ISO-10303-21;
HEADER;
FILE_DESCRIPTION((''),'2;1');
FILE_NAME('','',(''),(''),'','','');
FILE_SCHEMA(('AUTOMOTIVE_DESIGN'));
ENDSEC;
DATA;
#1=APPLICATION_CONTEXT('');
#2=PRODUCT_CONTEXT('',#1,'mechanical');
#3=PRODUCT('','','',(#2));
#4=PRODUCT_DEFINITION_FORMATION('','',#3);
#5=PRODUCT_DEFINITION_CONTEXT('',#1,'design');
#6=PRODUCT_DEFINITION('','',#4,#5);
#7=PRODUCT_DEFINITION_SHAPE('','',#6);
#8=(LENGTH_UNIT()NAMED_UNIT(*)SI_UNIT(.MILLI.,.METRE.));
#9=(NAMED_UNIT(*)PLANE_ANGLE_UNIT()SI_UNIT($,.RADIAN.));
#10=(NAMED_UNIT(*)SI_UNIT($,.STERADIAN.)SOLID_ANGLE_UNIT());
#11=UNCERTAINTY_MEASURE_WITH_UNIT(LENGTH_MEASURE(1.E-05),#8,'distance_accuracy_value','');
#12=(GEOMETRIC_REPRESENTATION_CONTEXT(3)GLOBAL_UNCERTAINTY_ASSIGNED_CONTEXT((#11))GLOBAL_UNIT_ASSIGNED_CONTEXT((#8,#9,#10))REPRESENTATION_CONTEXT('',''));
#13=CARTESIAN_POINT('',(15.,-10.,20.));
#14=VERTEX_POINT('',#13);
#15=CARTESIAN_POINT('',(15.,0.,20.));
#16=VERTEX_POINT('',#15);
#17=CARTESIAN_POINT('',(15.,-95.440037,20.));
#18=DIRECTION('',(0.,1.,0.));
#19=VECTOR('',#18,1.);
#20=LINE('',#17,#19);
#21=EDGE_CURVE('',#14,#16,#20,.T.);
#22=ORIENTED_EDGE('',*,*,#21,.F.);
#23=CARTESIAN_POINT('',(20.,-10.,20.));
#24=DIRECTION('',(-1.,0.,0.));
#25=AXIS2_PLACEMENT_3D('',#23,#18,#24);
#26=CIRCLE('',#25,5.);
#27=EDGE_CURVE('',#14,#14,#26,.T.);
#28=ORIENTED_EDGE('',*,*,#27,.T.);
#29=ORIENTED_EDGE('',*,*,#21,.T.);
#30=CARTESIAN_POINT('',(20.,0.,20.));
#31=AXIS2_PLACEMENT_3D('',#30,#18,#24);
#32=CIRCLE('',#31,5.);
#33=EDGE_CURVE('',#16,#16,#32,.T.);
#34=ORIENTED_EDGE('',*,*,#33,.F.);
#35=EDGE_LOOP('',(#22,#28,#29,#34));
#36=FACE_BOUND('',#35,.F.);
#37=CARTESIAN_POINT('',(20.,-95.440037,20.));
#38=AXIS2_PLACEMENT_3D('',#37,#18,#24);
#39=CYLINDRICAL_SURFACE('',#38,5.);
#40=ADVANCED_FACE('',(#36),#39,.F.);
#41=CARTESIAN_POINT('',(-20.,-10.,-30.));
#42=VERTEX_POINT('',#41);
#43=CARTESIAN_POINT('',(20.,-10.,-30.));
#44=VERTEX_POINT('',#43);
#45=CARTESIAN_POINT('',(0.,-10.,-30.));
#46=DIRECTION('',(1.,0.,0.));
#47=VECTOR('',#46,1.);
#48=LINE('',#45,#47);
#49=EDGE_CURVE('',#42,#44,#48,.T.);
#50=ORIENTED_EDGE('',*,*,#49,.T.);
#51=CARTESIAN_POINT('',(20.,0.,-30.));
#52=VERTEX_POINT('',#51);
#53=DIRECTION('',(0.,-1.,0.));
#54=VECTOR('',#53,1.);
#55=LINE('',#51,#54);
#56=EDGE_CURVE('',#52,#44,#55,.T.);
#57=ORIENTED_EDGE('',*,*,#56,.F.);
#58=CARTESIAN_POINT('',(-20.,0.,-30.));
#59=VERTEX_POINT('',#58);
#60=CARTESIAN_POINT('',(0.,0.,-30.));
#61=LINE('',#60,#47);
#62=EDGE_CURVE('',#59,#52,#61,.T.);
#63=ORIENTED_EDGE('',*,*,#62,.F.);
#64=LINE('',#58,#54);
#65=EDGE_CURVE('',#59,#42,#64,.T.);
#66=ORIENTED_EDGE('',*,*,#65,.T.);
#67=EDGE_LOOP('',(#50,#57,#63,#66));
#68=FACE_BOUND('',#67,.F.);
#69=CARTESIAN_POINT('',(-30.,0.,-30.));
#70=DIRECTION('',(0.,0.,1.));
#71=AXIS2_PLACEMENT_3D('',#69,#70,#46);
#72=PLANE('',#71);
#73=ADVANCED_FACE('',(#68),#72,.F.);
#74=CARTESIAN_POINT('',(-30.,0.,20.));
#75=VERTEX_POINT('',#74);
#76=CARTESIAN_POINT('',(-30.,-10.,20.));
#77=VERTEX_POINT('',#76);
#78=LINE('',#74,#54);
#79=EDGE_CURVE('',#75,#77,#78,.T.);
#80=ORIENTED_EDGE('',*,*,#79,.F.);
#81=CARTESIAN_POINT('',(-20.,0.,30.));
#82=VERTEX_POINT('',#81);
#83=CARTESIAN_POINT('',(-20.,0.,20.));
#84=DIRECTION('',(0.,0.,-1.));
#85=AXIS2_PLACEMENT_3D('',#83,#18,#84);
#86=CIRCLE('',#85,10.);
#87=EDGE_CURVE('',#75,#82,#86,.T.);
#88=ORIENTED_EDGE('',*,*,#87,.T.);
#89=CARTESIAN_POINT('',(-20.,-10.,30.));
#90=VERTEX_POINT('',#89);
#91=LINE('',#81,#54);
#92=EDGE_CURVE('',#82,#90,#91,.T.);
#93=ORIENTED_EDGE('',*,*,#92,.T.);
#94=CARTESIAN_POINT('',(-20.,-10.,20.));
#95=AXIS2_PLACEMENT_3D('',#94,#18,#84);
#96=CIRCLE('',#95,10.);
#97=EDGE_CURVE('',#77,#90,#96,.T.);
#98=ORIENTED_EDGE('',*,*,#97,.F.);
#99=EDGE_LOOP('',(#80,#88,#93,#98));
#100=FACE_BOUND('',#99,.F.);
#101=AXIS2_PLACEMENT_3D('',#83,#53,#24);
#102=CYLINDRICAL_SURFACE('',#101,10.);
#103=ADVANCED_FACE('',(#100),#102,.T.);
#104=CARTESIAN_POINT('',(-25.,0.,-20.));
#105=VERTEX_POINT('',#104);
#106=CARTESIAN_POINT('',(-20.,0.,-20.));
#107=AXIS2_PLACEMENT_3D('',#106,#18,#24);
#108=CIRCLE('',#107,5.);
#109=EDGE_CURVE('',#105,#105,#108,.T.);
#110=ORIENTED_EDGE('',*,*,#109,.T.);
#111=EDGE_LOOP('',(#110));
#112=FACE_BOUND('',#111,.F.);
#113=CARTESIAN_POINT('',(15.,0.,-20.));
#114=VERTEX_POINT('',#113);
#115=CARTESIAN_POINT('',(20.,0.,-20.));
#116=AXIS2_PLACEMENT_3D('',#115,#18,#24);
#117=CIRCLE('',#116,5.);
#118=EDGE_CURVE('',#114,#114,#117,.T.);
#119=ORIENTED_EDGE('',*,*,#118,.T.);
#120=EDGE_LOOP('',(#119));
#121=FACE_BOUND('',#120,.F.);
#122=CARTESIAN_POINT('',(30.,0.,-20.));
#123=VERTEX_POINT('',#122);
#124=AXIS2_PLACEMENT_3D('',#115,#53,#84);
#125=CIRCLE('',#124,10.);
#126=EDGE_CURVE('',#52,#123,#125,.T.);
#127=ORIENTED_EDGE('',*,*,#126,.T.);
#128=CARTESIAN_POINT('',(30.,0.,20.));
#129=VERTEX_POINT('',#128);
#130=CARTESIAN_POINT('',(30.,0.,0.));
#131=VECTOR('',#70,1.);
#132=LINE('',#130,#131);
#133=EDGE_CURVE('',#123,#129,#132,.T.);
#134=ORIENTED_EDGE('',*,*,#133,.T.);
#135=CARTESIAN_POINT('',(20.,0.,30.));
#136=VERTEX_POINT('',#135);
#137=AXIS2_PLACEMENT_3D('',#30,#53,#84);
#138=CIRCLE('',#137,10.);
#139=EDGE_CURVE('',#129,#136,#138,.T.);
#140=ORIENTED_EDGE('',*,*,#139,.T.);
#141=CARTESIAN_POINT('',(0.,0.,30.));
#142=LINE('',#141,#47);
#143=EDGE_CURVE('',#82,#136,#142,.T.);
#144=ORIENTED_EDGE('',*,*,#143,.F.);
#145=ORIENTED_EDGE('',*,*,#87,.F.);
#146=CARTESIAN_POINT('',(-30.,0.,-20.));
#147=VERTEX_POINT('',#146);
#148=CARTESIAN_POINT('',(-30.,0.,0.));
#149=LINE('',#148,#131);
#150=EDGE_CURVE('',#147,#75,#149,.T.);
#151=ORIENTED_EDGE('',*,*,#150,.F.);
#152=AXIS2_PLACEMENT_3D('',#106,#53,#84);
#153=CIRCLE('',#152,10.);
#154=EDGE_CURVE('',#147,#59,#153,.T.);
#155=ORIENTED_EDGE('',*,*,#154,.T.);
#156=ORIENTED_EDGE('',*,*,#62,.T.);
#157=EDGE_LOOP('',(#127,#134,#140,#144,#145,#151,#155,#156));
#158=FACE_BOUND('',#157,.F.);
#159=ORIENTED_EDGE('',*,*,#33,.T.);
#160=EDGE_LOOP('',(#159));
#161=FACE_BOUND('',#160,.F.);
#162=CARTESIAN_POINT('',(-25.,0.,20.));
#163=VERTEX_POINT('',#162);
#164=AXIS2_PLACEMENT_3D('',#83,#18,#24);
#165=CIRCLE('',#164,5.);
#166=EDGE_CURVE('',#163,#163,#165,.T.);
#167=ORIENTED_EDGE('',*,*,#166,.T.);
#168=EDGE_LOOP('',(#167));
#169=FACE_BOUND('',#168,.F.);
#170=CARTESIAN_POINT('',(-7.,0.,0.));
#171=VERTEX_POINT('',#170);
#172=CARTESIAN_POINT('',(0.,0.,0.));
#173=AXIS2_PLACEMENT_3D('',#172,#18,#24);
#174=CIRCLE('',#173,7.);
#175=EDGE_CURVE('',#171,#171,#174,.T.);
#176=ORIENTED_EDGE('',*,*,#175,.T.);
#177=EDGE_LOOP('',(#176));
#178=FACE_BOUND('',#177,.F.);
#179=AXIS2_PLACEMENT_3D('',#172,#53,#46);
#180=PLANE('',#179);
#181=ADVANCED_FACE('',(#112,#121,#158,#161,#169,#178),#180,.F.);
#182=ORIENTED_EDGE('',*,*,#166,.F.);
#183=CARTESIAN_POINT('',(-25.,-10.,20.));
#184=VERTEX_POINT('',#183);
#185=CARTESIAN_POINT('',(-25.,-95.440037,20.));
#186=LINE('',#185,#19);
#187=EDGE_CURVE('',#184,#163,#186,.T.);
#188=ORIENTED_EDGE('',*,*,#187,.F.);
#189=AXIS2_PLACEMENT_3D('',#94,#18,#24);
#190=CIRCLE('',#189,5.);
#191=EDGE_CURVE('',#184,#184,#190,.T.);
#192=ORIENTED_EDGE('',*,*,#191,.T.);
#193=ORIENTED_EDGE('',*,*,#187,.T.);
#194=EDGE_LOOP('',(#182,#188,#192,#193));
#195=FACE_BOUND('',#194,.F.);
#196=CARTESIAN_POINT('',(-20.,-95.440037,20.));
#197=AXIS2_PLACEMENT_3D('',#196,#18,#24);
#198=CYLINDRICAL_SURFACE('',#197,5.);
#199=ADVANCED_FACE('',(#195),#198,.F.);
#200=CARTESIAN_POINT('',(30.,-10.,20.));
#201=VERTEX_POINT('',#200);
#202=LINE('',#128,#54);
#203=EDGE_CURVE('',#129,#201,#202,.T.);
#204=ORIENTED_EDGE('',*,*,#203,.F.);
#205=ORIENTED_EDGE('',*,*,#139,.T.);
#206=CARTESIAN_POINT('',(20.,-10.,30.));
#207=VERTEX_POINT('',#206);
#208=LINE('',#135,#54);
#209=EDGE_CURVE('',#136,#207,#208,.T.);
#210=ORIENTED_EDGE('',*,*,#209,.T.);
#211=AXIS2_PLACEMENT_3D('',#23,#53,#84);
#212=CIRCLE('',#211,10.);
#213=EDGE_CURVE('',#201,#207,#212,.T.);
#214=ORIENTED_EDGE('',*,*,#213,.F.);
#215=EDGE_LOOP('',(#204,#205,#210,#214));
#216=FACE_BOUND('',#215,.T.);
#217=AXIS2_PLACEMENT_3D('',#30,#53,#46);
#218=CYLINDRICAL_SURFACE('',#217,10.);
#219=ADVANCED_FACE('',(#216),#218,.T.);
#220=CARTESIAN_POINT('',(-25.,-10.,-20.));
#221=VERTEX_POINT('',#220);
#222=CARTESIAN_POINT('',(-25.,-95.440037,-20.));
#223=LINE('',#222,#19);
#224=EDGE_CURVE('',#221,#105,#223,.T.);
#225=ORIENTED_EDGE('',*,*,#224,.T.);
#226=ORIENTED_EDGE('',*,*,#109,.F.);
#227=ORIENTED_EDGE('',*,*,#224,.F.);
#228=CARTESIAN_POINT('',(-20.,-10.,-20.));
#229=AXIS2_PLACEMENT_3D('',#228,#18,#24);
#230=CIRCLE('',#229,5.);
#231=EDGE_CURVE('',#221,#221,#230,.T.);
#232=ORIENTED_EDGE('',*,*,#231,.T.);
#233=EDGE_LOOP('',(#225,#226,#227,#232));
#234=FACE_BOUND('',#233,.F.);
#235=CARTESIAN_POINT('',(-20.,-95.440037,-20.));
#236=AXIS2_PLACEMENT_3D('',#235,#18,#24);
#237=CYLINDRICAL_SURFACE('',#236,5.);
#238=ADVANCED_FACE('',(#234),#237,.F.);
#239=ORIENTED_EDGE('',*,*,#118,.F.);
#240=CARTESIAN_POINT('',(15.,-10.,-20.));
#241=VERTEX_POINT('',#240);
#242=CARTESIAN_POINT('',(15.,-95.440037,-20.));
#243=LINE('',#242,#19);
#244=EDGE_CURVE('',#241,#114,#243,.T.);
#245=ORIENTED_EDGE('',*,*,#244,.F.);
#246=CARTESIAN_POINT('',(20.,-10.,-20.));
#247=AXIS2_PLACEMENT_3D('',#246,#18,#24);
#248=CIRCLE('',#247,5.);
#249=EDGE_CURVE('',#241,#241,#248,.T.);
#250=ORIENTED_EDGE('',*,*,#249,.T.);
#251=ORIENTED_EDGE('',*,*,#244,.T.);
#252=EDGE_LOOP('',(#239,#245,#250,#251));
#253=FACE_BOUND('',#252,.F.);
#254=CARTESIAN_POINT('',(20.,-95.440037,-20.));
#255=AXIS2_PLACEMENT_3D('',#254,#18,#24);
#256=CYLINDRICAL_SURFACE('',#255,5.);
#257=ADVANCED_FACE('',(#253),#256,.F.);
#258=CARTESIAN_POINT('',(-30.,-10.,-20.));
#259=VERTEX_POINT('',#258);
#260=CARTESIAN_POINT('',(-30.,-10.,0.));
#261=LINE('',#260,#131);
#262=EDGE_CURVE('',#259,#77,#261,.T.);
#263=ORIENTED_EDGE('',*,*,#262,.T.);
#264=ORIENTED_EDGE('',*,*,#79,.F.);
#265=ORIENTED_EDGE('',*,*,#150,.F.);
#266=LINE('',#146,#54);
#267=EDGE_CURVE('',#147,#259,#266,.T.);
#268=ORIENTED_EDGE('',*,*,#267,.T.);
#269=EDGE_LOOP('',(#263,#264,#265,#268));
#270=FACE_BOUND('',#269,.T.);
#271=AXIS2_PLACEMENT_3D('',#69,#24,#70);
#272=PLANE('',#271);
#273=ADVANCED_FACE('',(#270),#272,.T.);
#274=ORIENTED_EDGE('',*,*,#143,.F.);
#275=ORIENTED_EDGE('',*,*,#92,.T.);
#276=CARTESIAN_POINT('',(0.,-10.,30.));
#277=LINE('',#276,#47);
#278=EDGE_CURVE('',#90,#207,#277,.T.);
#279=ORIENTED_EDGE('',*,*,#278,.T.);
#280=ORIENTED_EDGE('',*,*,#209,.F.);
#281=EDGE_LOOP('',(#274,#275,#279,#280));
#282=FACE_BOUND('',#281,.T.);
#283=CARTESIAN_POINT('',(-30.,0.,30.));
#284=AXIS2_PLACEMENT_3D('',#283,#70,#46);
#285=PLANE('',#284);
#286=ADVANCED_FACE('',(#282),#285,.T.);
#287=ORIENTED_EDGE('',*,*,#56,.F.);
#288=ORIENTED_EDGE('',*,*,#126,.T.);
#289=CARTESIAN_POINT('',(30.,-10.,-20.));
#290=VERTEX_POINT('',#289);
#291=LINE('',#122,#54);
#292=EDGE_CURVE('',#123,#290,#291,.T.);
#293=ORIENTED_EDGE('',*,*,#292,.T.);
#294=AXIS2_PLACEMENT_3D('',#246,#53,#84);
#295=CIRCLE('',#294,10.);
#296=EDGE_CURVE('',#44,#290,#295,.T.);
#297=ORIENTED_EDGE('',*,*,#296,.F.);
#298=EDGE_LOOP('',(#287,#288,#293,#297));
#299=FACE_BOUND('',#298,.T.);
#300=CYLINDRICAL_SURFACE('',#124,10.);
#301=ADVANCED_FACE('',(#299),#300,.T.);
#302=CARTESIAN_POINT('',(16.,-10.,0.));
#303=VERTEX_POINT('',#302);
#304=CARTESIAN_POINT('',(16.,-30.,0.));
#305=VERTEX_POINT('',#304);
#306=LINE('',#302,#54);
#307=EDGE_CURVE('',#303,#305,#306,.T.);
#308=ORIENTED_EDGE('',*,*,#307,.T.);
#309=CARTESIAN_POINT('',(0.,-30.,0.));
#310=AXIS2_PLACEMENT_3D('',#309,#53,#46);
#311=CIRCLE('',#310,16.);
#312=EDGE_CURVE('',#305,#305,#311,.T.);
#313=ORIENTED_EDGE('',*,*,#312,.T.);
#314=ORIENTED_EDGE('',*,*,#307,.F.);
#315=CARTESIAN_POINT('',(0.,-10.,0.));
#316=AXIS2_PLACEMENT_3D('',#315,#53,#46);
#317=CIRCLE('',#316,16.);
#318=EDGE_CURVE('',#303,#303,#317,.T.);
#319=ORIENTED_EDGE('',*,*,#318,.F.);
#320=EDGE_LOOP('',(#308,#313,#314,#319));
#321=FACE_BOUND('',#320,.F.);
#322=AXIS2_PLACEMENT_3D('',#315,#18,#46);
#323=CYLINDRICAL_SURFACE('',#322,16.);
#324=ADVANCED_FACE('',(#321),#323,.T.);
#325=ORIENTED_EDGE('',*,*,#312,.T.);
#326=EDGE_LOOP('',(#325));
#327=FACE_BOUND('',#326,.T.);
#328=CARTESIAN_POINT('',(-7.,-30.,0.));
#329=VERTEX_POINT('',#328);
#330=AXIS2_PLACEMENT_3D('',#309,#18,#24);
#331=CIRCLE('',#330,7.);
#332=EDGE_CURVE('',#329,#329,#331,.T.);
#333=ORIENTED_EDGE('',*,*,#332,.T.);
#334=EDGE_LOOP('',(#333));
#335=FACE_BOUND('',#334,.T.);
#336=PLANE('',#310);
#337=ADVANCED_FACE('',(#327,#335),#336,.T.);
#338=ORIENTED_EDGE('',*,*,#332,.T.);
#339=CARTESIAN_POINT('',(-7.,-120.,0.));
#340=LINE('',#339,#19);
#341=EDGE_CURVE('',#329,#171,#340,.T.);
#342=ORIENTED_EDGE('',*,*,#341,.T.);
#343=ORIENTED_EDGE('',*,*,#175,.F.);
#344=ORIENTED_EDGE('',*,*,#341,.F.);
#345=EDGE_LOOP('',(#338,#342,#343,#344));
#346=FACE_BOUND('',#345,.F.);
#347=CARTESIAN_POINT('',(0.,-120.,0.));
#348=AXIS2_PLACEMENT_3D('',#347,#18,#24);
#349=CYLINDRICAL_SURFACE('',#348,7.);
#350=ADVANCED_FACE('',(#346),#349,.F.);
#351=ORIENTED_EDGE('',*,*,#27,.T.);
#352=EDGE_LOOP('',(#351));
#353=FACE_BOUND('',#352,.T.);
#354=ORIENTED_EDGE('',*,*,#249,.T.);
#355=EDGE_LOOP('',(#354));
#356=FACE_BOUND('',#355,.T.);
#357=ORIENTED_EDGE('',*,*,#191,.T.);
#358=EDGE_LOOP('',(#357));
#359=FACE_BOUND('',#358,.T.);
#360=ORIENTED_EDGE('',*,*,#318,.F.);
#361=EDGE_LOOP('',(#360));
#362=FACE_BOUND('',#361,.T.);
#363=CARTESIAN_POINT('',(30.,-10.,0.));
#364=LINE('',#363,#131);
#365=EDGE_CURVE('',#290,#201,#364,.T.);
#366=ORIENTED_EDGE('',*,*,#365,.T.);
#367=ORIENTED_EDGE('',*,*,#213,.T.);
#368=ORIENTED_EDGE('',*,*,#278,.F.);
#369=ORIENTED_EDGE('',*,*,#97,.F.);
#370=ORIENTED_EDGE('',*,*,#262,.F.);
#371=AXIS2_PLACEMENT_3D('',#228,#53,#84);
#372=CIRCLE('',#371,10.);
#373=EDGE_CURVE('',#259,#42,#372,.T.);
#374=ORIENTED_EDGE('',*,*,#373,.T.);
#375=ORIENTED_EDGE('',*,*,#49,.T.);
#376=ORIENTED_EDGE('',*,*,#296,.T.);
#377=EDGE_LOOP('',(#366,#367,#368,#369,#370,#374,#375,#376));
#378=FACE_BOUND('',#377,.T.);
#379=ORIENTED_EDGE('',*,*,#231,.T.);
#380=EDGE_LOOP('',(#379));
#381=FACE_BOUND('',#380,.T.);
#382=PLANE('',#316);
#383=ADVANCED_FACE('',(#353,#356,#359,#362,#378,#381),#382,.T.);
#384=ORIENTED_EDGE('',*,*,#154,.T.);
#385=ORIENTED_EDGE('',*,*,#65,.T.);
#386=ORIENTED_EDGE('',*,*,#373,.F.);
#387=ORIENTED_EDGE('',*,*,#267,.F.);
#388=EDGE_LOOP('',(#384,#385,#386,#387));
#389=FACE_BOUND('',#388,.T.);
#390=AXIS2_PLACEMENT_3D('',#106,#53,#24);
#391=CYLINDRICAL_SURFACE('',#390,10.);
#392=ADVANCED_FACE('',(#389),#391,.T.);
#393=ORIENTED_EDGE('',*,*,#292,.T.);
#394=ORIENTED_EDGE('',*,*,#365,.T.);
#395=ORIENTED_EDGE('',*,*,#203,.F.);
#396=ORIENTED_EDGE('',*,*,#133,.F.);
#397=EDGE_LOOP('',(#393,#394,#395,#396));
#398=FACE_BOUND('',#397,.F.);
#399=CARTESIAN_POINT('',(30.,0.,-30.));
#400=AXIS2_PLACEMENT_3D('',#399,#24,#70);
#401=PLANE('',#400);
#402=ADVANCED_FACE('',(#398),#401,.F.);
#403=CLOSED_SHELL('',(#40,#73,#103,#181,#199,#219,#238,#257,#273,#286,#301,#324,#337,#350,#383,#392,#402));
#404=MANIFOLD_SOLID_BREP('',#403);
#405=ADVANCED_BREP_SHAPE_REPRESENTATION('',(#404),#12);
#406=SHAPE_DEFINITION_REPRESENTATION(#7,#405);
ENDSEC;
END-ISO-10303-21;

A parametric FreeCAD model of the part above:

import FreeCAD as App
import Part
import Sketcher

V = App.Vector
Q = App.Units.Quantity


def edges_at(feature, points):
    """Names of the edges that pass closest to the given points."""
    edges = feature.Shape.Edges
    near = lambda p: min(range(len(edges)), key=lambda i: edges[i].distToShape(Part.Vertex(*p))[0])
    return sorted({f"Edge{near(p) + 1}" for p in points})


def add_polygon(sketch, points):
    """Adds a closed chain of lines whose ends are joined by coincident constraints."""
    first, n = sketch.GeometryCount, len(points)
    for a, b in zip(points, points[1:] + points[:1]):
        sketch.addGeometry(Part.LineSegment(App.Vector(*a, 0), App.Vector(*b, 0)), False)
    for i in range(n):
        sketch.addConstraint(Sketcher.Constraint("Coincident", first + i, 2, first + (i + 1) % n, 1))

doc = App.newDocument("Part")
body = doc.addObject("PartDesign::Body", "Body")

# Sketch on XZ plane
sketch1 = body.newObject("Sketcher::SketchObject", "Sketch")
sketch1.AttachmentSupport = (doc.getObject("XZ_Plane"), [""])
sketch1.MapMode = "FlatFace"
add_polygon(sketch1, [(-30, 30), (-30, -30), (30, -30), (30, 30)])  # lines 0-3
sketch1.addConstraint(Sketcher.Constraint("Vertical", 0))
sketch1.addConstraint(Sketcher.Constraint("Horizontal", 1))
sketch1.addConstraint(Sketcher.Constraint("Vertical", 2))
sketch1.addConstraint(Sketcher.Constraint("Horizontal", 3))
sketch1.addConstraint(Sketcher.Constraint("Symmetric", 0, 2, 2, 2, -1, 1))
sketch1.addConstraint(Sketcher.Constraint("Equal", 3, 0))
sketch1.addConstraint(Sketcher.Constraint("DistanceX", 1, 1, 1, 2, Q("60 mm")))
pad1 = body.newObject("PartDesign::Pad", "Pad")
pad1.Profile = sketch1
pad1.Length = 10
doc.recompute()

fillet = body.newObject("PartDesign::Fillet", "Fillet")
fillet.Base = (pad1, edges_at(pad1, [
    (-30, -5, 30),
    (-30, -5, -30),
    (30, -5, 30),
    (30, -5, -30),
]))
fillet.Radius = 10

# Sketch on XZ plane
sketch2 = body.newObject("Sketcher::SketchObject", "Sketch001")
sketch2.AttachmentSupport = (doc.getObject("XZ_Plane"), [""])
sketch2.MapMode = "FlatFace"
sketch2.AttachmentOffset = App.Placement(V(0, 0, 10), App.Rotation())
sketch2.addGeometry(Part.Circle(V(-20, 20, 0), V(0, 0, 1), 5), False)
sketch2.addGeometry(Part.Circle(V(20, 20, 0), V(0, 0, 1), 5), False)
sketch2.addGeometry(Part.Circle(V(20, -20, 0), V(0, 0, 1), 5), False)
sketch2.addGeometry(Part.Circle(V(-20, -20, 0), V(0, 0, 1), 5), False)
sketch2.addConstraint(Sketcher.Constraint("Equal", 0, 1))
sketch2.addConstraint(Sketcher.Constraint("Equal", 1, 2))
sketch2.addConstraint(Sketcher.Constraint("Equal", 2, 3))
sketch2.addConstraint(Sketcher.Constraint("Symmetric", 0, 3, 2, 3, -1, 1))
sketch2.addConstraint(Sketcher.Constraint("Symmetric", 1, 3, 3, 3, -1, 1))
sketch2.addConstraint(Sketcher.Constraint("Symmetric", 0, 3, 1, 3, -2))
sketch2.addConstraint(Sketcher.Constraint("Diameter", 0, Q("10 mm")))
sketch2.addConstraint(Sketcher.Constraint("DistanceX", 0, 3, -1, 1, Q("20 mm")))
sketch2.addConstraint(Sketcher.Constraint("DistanceY", -1, 1, 0, 3, Q("20 mm")))
doc.recompute()
hole = body.newObject("PartDesign::Hole", "Hole")
hole.Profile = sketch2
hole.ThreadType = "None"
hole.Diameter = 10
hole.DepthType = "ThroughAll"

# Sketch on XZ plane
sketch3 = body.newObject("Sketcher::SketchObject", "Sketch002")
sketch3.AttachmentSupport = (doc.getObject("XZ_Plane"), [""])
sketch3.MapMode = "FlatFace"
sketch3.AttachmentOffset = App.Placement(V(0, 0, 10), App.Rotation())
sketch3.addGeometry(Part.Circle(V(0, 0, 0), V(0, 0, 1), 16), False)
sketch3.addConstraint(Sketcher.Constraint("Coincident", 0, 3, -1, 1))
sketch3.addConstraint(Sketcher.Constraint("Diameter", 0, Q("32 mm")))
pad2 = body.newObject("PartDesign::Pad", "Pad001")
pad2.Profile = sketch3
pad2.Length = 20

# Sketch on XZ plane
sketch4 = body.newObject("Sketcher::SketchObject", "Sketch003")
sketch4.AttachmentSupport = (doc.getObject("XZ_Plane"), [""])
sketch4.MapMode = "FlatFace"
sketch4.AttachmentOffset = App.Placement(V(0, 0, 30), App.Rotation())
sketch4.addGeometry(Part.Circle(V(0, 0, 0), V(0, 0, 1), 7), False)
sketch4.addConstraint(Sketcher.Constraint("Coincident", 0, 3, -1, 1))
sketch4.addConstraint(Sketcher.Constraint("Diameter", 0, Q("14 mm")))
doc.recompute()
hole2 = body.newObject("PartDesign::Hole", "Hole001")
hole2.Profile = sketch4
hole2.ThreadType = "None"
hole2.Diameter = 14
hole2.DepthType = "ThroughAll"

doc.recompute()
